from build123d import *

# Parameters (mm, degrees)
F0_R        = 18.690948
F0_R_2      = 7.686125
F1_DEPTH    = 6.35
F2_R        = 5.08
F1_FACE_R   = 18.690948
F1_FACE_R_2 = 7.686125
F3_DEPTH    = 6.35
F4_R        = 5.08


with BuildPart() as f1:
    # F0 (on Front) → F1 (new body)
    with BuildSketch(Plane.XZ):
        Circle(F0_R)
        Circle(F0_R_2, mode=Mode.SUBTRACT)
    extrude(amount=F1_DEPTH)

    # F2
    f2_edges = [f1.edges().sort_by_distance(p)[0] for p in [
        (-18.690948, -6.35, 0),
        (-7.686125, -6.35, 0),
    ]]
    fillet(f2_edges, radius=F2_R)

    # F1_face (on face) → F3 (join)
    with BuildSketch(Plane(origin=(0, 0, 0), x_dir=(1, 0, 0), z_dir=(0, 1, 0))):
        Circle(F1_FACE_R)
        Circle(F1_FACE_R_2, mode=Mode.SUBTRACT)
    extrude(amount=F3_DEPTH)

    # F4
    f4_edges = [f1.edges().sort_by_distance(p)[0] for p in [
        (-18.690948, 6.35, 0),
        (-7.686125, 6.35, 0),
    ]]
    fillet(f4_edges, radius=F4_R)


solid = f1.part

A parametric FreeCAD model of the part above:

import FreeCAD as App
import Part
import Sketcher

V = App.Vector
Q = App.Units.Quantity


def edges_at(feature, points):
    """Names of the edges that pass closest to the given points."""
    edges = feature.Shape.Edges
    near = lambda p: min(range(len(edges)), key=lambda i: edges[i].distToShape(Part.Vertex(*p))[0])
    return sorted({f"Edge{near(p) + 1}" for p in points})

doc = App.newDocument("Part")
params = doc.addObject("Spreadsheet::Sheet", "Params")
for row, (alias, value) in enumerate([
    ("pad1_length", "0.25 in"),
    ("fillet_radius", "0.2 in"),
    ("pad2_length", "0.25 in"),
    ("fillet2_radius", "0.2 in"),
], start=1):
    params.set(f"A{row}", alias)
    params.set(f"B{row}", "=" + value)
    params.setAlias(f"B{row}", alias)

body = doc.addObject("PartDesign::Body", "Body")

sketch1 = body.newObject("Sketcher::SketchObject", "Sketch")
sketch1.AttachmentSupport = (doc.getObject("XZ_Plane"), [""])
sketch1.MapMode = "FlatFace"
sketch1.addGeometry([
    Part.Circle(V(0, 0, 0), V(0, 0, 1), 19),
    Part.Circle(V(0, 0, 0), V(0, 0, 1), 8),
], False)
sketch1.addConstraint([
    Sketcher.Constraint("Coincident", 0, 3, -1, 1),
    Sketcher.Constraint("Coincident", 1, 3, -1, 1),
    Sketcher.Constraint("Diameter", 1, Q("15.37225 mm")),
    Sketcher.Constraint("Diameter", 0, Q("37.381896 mm")),
])
pad1 = body.newObject("PartDesign::Pad", "Pad")
pad1.Profile = sketch1
pad1.setExpression("Length", "Params.pad1_length")
doc.recompute()

fillet = body.newObject("PartDesign::Fillet", "Fillet")
fillet.Base = (pad1, edges_at(pad1, [(-18.691, -6.35, 0), (-7.686, -6.35, 0)]))
fillet.setExpression("Radius", "Params.fillet_radius")

sketch2 = body.newObject("Sketcher::SketchObject", "Sketch001")
sketch2.AttachmentSupport = (doc.getObject("XZ_Plane"), [""])
sketch2.MapMode = "FlatFace"
sketch2.addGeometry([
    Part.Circle(V(0, 0, 0), V(0, 0, 1), 19),
    Part.Circle(V(0, 0, 0), V(0, 0, 1), 8),
], False)
sketch2.addConstraint([
    Sketcher.Constraint("Coincident", 0, 3, -1, 1),
    Sketcher.Constraint("Coincident", 1, 3, -1, 1),
    Sketcher.Constraint("Diameter", 1, Q("15.37225 mm")),
    Sketcher.Constraint("Diameter", 0, Q("37.381896 mm")),
])
pad2 = body.newObject("PartDesign::Pad", "Pad001")
pad2.Profile = sketch2
pad2.setExpression("Length", "Params.pad2_length")
pad2.Reversed = True
doc.recompute()

fillet2 = body.newObject("PartDesign::Fillet", "Fillet001")
fillet2.Base = (pad2, edges_at(pad2, [(-18.691, 6.35, 0), (-7.686, 6.35, 0)]))
fillet2.setExpression("Radius", "Params.fillet2_radius")

doc.recompute()
